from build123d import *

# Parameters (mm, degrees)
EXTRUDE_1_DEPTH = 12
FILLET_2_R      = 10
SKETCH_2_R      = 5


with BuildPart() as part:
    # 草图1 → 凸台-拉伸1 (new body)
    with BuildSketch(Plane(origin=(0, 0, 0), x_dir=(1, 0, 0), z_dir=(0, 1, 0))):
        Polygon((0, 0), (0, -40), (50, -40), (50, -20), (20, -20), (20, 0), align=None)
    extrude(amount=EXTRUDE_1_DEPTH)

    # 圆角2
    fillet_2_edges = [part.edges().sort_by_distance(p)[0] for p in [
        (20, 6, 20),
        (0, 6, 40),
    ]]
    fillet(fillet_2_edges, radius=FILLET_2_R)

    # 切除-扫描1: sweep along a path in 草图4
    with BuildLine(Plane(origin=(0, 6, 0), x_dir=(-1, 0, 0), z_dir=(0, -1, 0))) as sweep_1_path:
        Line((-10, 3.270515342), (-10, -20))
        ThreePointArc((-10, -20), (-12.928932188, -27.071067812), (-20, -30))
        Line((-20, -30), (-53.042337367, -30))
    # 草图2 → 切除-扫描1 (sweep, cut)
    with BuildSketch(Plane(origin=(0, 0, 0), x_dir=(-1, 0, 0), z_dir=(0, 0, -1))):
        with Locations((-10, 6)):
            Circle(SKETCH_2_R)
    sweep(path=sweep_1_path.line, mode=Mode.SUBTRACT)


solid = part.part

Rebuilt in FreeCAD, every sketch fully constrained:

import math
import FreeCAD as App
import Part
import Sketcher
Q = App.Units.Quantity


def edges_at(feature, points):
    """Names of the edges that pass closest to the given points."""
    edges = feature.Shape.Edges
    near = lambda p: min(range(len(edges)), key=lambda i: edges[i].distToShape(Part.Vertex(*p))[0])
    return sorted({f"Edge{near(p) + 1}" for p in points})

doc = App.newDocument("Part")
body = doc.addObject("PartDesign::Body", "Body")

sketch1 = body.newObject("Sketcher::SketchObject", "Sketch")
sketch1.AttachmentSupport = (doc.getObject("XZ_Plane"), [""])
sketch1.MapMode = "FlatFace"
sketch1.addGeometry(Part.LineSegment(App.Vector(0, 0, 0), App.Vector(0, 40, 0)), False)
sketch1.addGeometry(Part.LineSegment(App.Vector(0, 40, 0), App.Vector(50, 40, 0)), False)
sketch1.addGeometry(Part.LineSegment(App.Vector(50, 40, 0), App.Vector(50, 20, 0)), False)
sketch1.addGeometry(Part.LineSegment(App.Vector(50, 20, 0), App.Vector(20, 20, 0)), False)
sketch1.addGeometry(Part.LineSegment(App.Vector(20, 20, 0), App.Vector(20, 0, 0)), False)
sketch1.addGeometry(Part.LineSegment(App.Vector(20, 0, 0), App.Vector(0, 0, 0)), False)
sketch1.addConstraint(Sketcher.Constraint("Coincident", 0, 2, 1, 1))
sketch1.addConstraint(Sketcher.Constraint("Coincident", 1, 2, 2, 1))
sketch1.addConstraint(Sketcher.Constraint("Coincident", 2, 2, 3, 1))
sketch1.addConstraint(Sketcher.Constraint("Coincident", 3, 2, 4, 1))
sketch1.addConstraint(Sketcher.Constraint("Coincident", 4, 2, 5, 1))
sketch1.addConstraint(Sketcher.Constraint("Coincident", 5, 2, 0, 1))
sketch1.addConstraint(Sketcher.Constraint("Vertical", 0))
sketch1.addConstraint(Sketcher.Constraint("Horizontal", 1))
sketch1.addConstraint(Sketcher.Constraint("Vertical", 2))
sketch1.addConstraint(Sketcher.Constraint("Horizontal", 3))
sketch1.addConstraint(Sketcher.Constraint("Vertical", 4))
sketch1.addConstraint(Sketcher.Constraint("Horizontal", 5))
sketch1.addConstraint(Sketcher.Constraint("Coincident", 5, 2, -1, 1))
sketch1.addConstraint(Sketcher.Constraint("Equal", 5, 2))
sketch1.addConstraint(Sketcher.Constraint("Equal", 2, 4))
sketch1.addConstraint(Sketcher.Constraint("DistanceX", 1, 1, 1, 2, Q("50 mm")))
sketch1.addConstraint(Sketcher.Constraint("DistanceX", 3, 2, 3, 1, Q("30 mm")))
pad1 = body.newObject("PartDesign::Pad", "Pad")
pad1.Profile = sketch1
pad1.Length = 12
pad1.Reversed = True
doc.recompute()

fillet = body.newObject("PartDesign::Fillet", "Fillet")
fillet.Base = (pad1, edges_at(pad1, [(20, 6, 20), (0, 6, 40)]))
fillet.Radius = 10

sketch2 = body.newObject("Sketcher::SketchObject", "Sketch001")
sketch2.AttachmentSupport = (doc.getObject("XY_Plane"), [""])
sketch2.MapMode = "FlatFace"
sketch2.addGeometry(Part.Circle(App.Vector(10, 6, 0), App.Vector(0, 0, 1), 5), False)
sketch2.addConstraint(Sketcher.Constraint("Diameter", 0, Q("10 mm")))
sketch2.addConstraint(Sketcher.Constraint("DistanceX", -1, 1, 0, 3, Q("10 mm")))
sketch2.addConstraint(Sketcher.Constraint("DistanceY", -1, 1, 0, 3, Q("6 mm")))

sketch3 = body.newObject("Sketcher::SketchObject", "Sketch002")
sketch3.AttachmentSupport = (doc.getObject("XZ_Plane"), [""])
sketch3.MapMode = "FlatFace"
sketch3.AttachmentOffset = App.Placement(App.Vector(0, 0, -6), App.Rotation())
sketch3.addGeometry(Part.LineSegment(App.Vector(10, -3.270515, 0), App.Vector(10, 20, 0)), False)
sketch3.addGeometry(Part.ArcOfCircle(Part.Circle(App.Vector(20, 20, 0), App.Vector(0, 0, 1), 10), math.radians(90), math.radians(180)), False)
sketch3.addGeometry(Part.LineSegment(App.Vector(20, 30, 0), App.Vector(53.042337, 30, 0)), False)
sketch3.addConstraint(Sketcher.Constraint("Tangent", 0, 2, 1, 2))
sketch3.addConstraint(Sketcher.Constraint("Tangent", 1, 1, 2, 1))
sketch3.addConstraint(Sketcher.Constraint("Vertical", 0))
sketch3.addConstraint(Sketcher.Constraint("Horizontal", 2))
sketch3.addConstraint(Sketcher.Constraint("Radius", 1, Q("10 mm")))
sketch3.addConstraint(Sketcher.Constraint("DistanceX", -1, 1, 1, 3, Q("20 mm")))
sketch3.addConstraint(Sketcher.Constraint("DistanceY", -1, 1, 1, 3, Q("20 mm")))
sketch3.addConstraint(Sketcher.Constraint("DistanceX", 2, 1, 2, 2, Q("33.042337 mm")))
sketch3.addConstraint(Sketcher.Constraint("DistanceY", 0, 1, 0, 2, Q("23.270515 mm")))
doc.recompute()

subtractivepipe = body.newObject("PartDesign::SubtractivePipe", "SubtractivePipe")
subtractivepipe.Profile = sketch2
subtractivepipe.Spine = (sketch3, ["Edge1", "Edge2", "Edge3"])

doc.recompute()
